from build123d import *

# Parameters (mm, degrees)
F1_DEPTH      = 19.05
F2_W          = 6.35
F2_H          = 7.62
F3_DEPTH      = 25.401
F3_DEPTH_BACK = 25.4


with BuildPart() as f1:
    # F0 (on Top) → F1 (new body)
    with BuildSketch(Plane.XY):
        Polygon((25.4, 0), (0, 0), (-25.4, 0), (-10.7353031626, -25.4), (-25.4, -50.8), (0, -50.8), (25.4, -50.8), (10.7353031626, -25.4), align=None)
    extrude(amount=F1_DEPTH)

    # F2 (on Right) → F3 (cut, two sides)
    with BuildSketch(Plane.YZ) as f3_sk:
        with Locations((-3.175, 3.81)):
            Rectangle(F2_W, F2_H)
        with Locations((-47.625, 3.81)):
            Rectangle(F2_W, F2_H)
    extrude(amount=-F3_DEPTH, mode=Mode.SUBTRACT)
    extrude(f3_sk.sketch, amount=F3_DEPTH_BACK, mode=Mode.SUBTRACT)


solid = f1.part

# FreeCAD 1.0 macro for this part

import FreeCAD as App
import Part
import Sketcher

V = App.Vector
Q = App.Units.Quantity


def add_polygon(sketch, points):
    """Adds a closed chain of lines whose ends are joined by coincident constraints."""
    first, n = sketch.GeometryCount, len(points)
    for a, b in zip(points, points[1:] + points[:1]):
        sketch.addGeometry(Part.LineSegment(App.Vector(*a, 0), App.Vector(*b, 0)), False)
    for i in range(n):
        sketch.addConstraint(Sketcher.Constraint("Coincident", first + i, 2, first + (i + 1) % n, 1))

doc = App.newDocument("Part")
body = doc.addObject("PartDesign::Body", "Body")

sketch1 = doc.addObject("Sketcher::SketchObject", "Sketch")
body.addObject(sketch1)
sketch1.AttachmentSupport = (doc.XY_Plane, [""])
sketch1.MapMode = "FlatFace"
add_polygon(sketch1, [(25, 0), (-25, 0), (-11, -25), (-25, -51), (25, -51), (11, -25)])
sketch1.addConstraint([
    Sketcher.Constraint("Horizontal", 0),
    Sketcher.Constraint("Horizontal", 3),
    Sketcher.Constraint("Symmetric", 0, 2, 5, 2, -1, 1),
    Sketcher.Constraint("Symmetric", 1, 2, 4, 2, -2),
    Sketcher.Constraint("Parallel", 1, 4),
    Sketcher.Constraint("Parallel", 2, 5),
    Sketcher.Constraint("Vertical", 0, 2, 2, 2),
    Sketcher.Constraint("DistanceX", 0, 2, 0, 1, Q("2 in")),
    Sketcher.Constraint("DistanceY", 1, 2, -1, 1, Q("1 in")),
    Sketcher.Constraint("Angle", 1, Q("-60 deg")),
])
pad1 = doc.addObject("PartDesign::Pad", "Pad")
body.addObject(pad1)
pad1.Profile = sketch1
pad1.Length = Q("0.75 in")

sketch2 = doc.addObject("Sketcher::SketchObject", "Sketch001")
body.addObject(sketch2)
sketch2.AttachmentSupport = (doc.YZ_Plane, [""])
sketch2.MapMode = "FlatFace"
add_polygon(sketch2, [(-6, 8), (-6, 0), (0, 0), (0, 8)])
add_polygon(sketch2, [(-51, 8), (-51, 0), (-44, 0), (-44, 8)])
sketch2.addConstraint([
    Sketcher.Constraint("Vertical", 0),
    Sketcher.Constraint("Horizontal", 1),
    Sketcher.Constraint("Vertical", 2),
    Sketcher.Constraint("Horizontal", 3),
    Sketcher.Constraint("Vertical", 4),
    Sketcher.Constraint("Horizontal", 5),
    Sketcher.Constraint("Vertical", 6),
    Sketcher.Constraint("Horizontal", 7),
    Sketcher.Constraint("Coincident", 1, 2, -1, 1),
    Sketcher.Constraint("PointOnObject", 4, 2, -1),
    Sketcher.Constraint("Horizontal", 3, 2, 6, 2),
    Sketcher.Constraint("Equal", 3, 5),
    Sketcher.Constraint("DistanceY", 0, 2, 0, 1, Q("0.3 in")),
    Sketcher.Constraint("DistanceX", 4, 2, -1, 1, Q("2 in")),
    Sketcher.Constraint("DistanceX", 1, 1, 1, 2, Q("0.25 in")),
])
pocket1 = doc.addObject("PartDesign::Pocket", "Pocket")
body.addObject(pocket1)
pocket1.Profile = sketch2
pocket1.Type = "ThroughAll"
pocket1.Midplane = True

doc.recompute()
